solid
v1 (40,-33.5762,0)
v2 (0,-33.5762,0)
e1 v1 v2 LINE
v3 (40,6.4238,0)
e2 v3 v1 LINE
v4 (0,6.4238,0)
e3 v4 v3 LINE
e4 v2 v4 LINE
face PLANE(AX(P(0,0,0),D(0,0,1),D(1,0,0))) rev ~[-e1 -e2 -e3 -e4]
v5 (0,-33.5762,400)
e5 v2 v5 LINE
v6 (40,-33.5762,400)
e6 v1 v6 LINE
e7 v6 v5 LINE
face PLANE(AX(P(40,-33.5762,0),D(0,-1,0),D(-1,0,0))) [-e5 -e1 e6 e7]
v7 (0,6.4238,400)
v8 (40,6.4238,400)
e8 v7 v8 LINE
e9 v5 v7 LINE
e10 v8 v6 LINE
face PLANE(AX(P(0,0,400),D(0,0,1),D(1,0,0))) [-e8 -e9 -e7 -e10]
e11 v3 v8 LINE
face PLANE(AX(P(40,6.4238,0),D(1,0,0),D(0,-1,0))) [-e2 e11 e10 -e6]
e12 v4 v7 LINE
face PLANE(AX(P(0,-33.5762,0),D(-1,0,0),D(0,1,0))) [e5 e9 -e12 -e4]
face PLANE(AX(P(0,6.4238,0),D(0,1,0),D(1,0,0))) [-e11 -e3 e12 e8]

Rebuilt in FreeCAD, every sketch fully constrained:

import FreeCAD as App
import Part
import Sketcher

doc = App.newDocument("Part")
body = doc.addObject("PartDesign::Body", "Body")

# Sketch on XY plane
sketch1 = body.newObject("Sketcher::SketchObject", "Sketch")
sketch1.AttachmentSupport = (doc.getObject("XY_Plane"), [""])
sketch1.MapMode = "FlatFace"
sketch1.addGeometry([
    Part.LineSegment(App.Vector(40, 6.4238, 0), App.Vector(0, 6.4238, 0)),
    Part.LineSegment(App.Vector(0, 6.4238, 0), App.Vector(0, -33.5762, 0)),
    Part.LineSegment(App.Vector(0, -33.5762, 0), App.Vector(40, -33.5762, 0)),
    Part.LineSegment(App.Vector(40, -33.5762, 0), App.Vector(40, 6.4238, 0)),
], False)
sketch1.addConstraint([
    Sketcher.Constraint("Coincident", 0, 2, 1, 1),
    Sketcher.Constraint("Coincident", 1, 2, 2, 1),
    Sketcher.Constraint("Coincident", 2, 2, 3, 1),
    Sketcher.Constraint("Coincident", 3, 2, 0, 1),
    Sketcher.Constraint("Horizontal", 0),
    Sketcher.Constraint("Vertical", 1),
    Sketcher.Constraint("Horizontal", 2),
    Sketcher.Constraint("Vertical", 3),
    Sketcher.Constraint("PointOnObject", 0, 2, -2),
    Sketcher.Constraint("Equal", 2, 1),
    Sketcher.Constraint("DistanceX", 0, 2, 0, 1, 40.0),
    Sketcher.Constraint("DistanceY", -1, 1, 0, 2, 6.4238),
])
pad1 = body.newObject("PartDesign::Pad", "Pad")
pad1.Profile = sketch1
pad1.Length = 400

doc.recompute()
